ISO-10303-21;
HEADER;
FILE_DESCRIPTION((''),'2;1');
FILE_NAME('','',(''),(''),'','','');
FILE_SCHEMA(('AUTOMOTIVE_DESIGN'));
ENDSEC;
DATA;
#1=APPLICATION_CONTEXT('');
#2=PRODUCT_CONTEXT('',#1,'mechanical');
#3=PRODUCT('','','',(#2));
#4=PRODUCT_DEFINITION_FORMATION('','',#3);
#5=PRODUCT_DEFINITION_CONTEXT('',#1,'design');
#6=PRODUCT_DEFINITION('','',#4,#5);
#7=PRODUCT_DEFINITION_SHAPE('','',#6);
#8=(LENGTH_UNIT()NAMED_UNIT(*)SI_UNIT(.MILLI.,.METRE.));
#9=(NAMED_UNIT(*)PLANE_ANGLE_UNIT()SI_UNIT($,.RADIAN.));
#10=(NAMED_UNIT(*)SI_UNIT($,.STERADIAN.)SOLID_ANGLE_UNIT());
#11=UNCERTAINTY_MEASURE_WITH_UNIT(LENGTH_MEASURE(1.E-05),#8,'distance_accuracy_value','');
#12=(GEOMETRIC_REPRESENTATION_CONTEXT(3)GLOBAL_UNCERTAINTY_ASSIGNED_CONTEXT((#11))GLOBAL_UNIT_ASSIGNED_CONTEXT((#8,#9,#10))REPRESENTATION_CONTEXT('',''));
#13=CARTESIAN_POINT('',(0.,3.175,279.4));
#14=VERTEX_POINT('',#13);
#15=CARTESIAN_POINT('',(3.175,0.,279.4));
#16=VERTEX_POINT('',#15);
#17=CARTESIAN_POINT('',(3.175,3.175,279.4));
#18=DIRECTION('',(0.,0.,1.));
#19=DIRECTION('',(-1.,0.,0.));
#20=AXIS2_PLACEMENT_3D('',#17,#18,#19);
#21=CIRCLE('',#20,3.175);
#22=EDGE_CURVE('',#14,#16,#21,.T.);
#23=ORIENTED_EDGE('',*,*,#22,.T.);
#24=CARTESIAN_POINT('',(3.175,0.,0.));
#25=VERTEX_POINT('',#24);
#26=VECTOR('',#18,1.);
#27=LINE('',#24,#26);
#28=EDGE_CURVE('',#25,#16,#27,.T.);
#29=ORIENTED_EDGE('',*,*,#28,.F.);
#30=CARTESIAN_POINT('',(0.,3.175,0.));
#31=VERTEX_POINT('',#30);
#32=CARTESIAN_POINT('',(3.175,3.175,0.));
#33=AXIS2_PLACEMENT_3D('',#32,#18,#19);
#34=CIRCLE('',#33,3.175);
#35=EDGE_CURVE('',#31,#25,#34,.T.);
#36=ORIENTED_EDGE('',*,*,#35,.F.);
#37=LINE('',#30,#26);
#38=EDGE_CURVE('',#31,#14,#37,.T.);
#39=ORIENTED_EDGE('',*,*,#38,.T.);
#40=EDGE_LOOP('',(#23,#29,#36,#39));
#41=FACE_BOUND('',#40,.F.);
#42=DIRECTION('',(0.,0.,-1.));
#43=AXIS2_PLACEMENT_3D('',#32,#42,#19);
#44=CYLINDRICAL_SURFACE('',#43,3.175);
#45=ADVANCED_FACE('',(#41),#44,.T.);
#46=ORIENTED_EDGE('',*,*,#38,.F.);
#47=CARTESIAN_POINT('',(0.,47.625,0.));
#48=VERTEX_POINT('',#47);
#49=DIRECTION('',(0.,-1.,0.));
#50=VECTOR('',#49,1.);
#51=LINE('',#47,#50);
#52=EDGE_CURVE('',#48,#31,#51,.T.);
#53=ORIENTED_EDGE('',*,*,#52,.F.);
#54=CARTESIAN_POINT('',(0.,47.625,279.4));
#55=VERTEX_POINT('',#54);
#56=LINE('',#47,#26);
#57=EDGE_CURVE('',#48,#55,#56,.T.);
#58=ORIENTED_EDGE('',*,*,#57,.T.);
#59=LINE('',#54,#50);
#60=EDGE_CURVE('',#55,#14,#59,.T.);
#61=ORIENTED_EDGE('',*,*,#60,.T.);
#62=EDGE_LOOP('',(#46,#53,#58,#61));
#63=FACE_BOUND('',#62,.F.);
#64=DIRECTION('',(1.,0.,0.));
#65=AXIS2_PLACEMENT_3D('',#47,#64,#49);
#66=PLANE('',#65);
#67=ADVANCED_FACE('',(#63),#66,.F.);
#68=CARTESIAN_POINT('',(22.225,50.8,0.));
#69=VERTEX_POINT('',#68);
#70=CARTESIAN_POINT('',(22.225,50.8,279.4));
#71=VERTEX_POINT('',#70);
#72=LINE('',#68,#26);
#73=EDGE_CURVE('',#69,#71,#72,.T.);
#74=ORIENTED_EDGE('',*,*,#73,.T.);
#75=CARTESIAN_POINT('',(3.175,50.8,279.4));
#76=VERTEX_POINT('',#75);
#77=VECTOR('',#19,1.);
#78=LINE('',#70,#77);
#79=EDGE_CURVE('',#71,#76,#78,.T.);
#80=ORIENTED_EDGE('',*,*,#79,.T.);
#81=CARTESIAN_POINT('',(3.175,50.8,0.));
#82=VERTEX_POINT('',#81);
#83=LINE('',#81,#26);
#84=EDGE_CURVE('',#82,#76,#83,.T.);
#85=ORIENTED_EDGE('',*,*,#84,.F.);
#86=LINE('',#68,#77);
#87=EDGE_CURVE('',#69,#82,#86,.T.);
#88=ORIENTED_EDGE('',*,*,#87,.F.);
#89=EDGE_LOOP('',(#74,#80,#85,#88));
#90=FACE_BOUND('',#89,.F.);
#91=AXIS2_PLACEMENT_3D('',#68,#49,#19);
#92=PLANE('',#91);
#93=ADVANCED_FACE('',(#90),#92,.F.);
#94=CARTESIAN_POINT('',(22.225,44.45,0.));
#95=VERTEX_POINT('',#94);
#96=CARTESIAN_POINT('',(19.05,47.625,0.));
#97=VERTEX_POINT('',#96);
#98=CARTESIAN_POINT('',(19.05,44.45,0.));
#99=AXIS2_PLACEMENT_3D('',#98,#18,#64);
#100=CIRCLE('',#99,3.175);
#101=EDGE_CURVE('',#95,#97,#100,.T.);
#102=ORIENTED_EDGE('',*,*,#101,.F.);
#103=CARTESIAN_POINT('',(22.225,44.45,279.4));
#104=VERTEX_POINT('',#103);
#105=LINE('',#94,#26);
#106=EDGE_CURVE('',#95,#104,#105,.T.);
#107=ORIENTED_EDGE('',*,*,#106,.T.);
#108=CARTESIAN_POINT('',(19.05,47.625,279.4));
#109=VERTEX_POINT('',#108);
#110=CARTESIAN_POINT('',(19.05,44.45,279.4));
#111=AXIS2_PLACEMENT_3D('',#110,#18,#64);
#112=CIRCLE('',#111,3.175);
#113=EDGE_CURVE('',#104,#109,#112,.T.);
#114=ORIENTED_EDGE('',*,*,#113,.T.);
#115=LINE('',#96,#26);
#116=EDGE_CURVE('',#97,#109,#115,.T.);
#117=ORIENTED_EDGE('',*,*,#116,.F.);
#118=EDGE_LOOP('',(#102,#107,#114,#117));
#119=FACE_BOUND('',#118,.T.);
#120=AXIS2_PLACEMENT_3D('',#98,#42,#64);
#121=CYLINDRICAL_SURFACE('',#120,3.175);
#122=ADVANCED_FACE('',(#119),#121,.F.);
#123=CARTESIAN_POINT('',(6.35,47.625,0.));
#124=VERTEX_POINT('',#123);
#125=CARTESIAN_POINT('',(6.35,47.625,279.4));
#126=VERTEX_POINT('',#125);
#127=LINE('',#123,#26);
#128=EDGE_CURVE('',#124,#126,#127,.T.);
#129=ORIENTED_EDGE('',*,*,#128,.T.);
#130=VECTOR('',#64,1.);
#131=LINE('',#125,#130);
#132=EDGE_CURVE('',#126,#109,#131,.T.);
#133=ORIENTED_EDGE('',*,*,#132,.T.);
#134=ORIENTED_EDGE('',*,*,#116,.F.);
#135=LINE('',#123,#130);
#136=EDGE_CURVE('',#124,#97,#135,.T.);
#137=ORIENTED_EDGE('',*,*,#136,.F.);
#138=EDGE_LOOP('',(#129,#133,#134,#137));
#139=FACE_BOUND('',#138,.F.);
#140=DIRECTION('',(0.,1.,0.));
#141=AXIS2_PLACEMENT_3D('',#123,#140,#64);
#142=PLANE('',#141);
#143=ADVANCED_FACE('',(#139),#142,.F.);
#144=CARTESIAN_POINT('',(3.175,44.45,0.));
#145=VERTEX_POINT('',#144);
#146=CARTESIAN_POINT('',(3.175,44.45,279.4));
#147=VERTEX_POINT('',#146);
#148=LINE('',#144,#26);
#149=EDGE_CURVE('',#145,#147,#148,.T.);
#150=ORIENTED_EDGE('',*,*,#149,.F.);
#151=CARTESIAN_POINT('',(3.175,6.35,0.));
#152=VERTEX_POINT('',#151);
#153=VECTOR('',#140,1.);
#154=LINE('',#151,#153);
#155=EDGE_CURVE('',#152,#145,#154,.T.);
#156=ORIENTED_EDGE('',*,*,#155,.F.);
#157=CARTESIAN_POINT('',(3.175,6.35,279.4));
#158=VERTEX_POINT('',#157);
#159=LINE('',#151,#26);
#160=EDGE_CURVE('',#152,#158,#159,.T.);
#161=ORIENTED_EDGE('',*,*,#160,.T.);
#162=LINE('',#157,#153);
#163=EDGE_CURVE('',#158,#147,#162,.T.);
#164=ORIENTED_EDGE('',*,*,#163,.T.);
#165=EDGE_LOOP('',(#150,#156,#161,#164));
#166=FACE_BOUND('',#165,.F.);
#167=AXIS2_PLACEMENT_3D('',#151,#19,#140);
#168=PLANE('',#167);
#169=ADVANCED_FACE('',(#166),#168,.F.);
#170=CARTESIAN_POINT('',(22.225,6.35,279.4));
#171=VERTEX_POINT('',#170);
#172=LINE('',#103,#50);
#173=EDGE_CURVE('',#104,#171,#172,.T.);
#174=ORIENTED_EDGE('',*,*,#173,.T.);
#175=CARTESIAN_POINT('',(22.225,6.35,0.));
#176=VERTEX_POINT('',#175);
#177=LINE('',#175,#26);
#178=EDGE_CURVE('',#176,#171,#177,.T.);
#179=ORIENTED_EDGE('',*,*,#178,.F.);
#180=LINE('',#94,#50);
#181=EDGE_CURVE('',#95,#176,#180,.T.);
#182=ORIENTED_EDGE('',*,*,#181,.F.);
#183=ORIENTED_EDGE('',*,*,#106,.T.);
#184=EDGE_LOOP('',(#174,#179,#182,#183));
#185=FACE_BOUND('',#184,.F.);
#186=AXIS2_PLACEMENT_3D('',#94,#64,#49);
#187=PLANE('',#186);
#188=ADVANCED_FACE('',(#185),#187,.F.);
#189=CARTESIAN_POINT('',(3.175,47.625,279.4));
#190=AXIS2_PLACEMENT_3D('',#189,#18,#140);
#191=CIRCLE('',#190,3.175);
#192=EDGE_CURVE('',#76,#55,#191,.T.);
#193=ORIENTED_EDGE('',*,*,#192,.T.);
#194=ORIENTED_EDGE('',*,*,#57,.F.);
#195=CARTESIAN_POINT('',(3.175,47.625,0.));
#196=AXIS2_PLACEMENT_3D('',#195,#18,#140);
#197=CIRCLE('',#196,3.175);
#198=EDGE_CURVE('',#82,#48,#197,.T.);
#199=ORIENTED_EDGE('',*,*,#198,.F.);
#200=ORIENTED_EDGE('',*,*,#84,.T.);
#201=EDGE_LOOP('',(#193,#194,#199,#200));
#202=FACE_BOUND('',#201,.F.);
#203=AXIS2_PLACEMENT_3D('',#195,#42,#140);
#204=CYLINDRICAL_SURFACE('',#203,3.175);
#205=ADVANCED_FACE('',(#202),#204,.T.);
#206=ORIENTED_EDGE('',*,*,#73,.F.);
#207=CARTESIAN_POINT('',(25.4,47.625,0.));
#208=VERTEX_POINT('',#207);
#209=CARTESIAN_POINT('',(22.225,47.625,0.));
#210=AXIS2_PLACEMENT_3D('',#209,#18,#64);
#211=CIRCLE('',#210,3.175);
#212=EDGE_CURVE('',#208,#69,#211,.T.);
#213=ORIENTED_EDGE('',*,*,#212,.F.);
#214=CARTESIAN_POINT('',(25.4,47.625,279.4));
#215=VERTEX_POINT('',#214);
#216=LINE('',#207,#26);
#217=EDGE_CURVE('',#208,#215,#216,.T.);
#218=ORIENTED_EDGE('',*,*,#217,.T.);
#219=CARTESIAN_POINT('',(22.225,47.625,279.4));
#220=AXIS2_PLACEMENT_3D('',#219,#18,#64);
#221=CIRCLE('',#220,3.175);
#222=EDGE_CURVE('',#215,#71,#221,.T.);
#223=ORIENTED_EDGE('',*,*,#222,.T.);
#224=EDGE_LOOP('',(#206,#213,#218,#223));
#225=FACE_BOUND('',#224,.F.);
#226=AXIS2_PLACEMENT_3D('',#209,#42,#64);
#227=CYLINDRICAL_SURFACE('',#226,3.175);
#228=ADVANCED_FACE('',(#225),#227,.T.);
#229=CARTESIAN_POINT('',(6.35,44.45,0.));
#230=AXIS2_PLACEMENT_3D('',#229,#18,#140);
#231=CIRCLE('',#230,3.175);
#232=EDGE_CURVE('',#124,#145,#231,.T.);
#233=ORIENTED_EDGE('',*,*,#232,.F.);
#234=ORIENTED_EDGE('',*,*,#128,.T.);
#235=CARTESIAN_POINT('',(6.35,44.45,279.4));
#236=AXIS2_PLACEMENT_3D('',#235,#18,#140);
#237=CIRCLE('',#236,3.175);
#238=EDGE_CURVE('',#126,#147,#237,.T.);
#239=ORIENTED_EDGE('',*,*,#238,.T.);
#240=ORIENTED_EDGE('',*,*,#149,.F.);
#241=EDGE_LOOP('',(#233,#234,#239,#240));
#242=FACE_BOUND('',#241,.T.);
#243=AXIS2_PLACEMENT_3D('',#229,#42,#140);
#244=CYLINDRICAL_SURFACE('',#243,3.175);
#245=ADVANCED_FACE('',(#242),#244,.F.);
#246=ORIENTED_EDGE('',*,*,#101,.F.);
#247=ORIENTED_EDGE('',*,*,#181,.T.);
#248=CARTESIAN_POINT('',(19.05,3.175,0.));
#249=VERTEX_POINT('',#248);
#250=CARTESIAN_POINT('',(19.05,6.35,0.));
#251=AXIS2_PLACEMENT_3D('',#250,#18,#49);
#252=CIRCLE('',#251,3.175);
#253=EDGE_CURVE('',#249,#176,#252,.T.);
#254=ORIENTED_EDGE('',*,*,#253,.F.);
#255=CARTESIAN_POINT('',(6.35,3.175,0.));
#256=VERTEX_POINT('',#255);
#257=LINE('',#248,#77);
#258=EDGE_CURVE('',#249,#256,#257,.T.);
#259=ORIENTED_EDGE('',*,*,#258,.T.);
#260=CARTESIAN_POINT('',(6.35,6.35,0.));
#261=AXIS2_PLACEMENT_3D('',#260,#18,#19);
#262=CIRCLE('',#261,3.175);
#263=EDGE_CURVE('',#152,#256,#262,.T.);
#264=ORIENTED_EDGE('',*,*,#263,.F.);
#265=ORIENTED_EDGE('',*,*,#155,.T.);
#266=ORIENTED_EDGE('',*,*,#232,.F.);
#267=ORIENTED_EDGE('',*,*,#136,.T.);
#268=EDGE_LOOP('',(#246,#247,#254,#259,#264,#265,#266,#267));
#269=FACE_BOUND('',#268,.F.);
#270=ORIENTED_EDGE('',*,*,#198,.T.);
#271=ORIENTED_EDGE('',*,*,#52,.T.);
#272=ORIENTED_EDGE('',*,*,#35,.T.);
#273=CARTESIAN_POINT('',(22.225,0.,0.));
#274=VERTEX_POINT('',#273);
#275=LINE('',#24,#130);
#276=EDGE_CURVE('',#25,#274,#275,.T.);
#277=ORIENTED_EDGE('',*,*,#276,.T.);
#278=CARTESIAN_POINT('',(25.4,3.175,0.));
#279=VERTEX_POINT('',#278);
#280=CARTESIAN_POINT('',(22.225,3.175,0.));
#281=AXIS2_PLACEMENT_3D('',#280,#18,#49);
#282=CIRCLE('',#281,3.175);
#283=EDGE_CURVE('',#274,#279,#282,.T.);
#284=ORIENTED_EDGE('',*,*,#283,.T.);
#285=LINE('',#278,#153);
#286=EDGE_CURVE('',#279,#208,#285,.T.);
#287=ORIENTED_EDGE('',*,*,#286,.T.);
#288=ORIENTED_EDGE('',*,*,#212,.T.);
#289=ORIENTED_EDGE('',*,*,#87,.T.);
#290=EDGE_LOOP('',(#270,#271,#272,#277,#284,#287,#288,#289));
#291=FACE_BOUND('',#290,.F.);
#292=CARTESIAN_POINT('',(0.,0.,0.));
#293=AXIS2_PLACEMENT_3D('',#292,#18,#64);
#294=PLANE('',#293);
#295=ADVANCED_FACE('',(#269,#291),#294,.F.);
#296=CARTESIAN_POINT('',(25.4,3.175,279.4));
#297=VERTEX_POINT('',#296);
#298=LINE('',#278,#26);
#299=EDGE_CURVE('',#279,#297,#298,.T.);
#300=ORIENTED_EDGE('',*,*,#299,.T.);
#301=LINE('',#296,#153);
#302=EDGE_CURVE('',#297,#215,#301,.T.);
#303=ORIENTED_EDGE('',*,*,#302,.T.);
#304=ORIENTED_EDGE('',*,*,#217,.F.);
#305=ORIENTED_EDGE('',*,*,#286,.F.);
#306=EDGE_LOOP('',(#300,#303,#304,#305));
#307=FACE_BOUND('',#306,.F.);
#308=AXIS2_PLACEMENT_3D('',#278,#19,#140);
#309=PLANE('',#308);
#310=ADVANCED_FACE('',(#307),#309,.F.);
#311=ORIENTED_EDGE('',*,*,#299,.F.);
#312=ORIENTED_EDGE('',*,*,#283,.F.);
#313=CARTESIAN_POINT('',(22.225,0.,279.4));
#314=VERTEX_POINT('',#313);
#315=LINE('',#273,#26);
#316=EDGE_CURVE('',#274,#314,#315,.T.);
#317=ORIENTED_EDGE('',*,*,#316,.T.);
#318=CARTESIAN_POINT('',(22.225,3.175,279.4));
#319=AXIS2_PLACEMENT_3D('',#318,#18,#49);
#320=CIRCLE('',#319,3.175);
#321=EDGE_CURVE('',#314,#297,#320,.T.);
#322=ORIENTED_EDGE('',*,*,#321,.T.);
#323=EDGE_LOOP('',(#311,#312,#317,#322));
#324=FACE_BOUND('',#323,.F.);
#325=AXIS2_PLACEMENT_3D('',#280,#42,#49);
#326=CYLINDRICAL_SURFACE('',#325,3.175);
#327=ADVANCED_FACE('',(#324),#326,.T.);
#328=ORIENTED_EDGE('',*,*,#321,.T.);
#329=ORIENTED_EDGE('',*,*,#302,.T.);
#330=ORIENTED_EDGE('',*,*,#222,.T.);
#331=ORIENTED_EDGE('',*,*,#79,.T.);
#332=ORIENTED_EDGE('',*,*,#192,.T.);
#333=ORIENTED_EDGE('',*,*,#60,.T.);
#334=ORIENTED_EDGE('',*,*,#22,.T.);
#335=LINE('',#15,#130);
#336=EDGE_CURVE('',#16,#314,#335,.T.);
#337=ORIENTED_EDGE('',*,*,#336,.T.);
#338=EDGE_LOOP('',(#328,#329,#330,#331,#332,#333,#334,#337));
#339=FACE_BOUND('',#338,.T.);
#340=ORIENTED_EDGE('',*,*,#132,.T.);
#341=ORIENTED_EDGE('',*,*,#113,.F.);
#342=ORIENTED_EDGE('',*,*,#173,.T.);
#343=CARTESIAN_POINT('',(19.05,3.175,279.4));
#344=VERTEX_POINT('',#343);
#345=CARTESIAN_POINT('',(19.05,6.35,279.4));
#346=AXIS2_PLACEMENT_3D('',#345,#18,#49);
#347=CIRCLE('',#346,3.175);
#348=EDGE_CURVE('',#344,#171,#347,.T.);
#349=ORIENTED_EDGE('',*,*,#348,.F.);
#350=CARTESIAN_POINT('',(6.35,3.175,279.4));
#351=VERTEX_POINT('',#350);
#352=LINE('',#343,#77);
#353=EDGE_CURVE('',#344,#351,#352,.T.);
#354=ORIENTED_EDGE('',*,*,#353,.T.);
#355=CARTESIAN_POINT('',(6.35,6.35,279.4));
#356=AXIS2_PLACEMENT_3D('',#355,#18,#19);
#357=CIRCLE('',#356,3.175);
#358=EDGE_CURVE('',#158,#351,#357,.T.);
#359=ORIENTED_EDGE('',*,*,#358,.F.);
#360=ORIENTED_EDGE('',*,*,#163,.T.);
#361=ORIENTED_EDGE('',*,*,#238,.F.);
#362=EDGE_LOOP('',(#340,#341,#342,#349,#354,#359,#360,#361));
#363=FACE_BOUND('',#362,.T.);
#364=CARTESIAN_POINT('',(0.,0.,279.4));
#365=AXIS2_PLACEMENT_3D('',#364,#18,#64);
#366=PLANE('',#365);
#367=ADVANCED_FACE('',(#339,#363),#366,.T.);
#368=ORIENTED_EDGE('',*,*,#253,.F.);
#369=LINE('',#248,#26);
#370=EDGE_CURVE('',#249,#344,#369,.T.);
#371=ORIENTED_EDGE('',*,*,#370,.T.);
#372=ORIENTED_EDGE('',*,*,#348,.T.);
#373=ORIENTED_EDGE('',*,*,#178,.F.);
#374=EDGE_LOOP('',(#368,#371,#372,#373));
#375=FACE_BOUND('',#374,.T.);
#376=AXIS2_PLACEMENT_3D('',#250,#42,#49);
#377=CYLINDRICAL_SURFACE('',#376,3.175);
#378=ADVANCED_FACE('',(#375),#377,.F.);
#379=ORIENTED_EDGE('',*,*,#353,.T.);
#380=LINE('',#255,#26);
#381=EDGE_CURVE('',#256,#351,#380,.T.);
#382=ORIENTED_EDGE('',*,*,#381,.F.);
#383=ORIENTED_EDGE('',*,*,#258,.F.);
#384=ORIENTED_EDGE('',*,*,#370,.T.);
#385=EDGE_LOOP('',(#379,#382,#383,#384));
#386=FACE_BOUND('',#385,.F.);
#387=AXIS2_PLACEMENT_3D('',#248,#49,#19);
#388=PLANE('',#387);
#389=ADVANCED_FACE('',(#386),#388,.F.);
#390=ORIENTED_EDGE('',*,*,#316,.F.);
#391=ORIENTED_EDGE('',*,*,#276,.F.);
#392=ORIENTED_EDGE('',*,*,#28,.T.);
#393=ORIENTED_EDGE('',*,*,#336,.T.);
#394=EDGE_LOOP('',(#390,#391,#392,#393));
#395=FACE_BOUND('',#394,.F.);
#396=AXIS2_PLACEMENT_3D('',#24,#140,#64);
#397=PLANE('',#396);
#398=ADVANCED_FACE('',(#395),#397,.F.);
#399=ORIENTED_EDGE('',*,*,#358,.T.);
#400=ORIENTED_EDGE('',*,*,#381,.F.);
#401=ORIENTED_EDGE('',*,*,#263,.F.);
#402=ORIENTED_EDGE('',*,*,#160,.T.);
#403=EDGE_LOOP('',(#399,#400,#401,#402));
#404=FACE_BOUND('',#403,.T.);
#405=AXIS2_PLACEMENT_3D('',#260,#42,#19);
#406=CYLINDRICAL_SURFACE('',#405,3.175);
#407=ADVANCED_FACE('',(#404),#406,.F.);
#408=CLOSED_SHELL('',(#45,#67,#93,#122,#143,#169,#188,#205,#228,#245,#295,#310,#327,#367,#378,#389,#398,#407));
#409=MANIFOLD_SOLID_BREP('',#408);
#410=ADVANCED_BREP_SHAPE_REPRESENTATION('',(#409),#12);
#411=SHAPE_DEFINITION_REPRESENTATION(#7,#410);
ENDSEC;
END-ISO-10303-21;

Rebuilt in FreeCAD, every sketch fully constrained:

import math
import FreeCAD as App
import Part
import Sketcher

V = App.Vector
Q = App.Units.Quantity

doc = App.newDocument("Part")
body = doc.addObject("PartDesign::Body", "Body")

sketch1 = doc.addObject("Sketcher::SketchObject", "Sketch")
body.addObject(sketch1)
sketch1.AttachmentSupport = (doc.XY_Plane, [""])
sketch1.MapMode = "FlatFace"
sketch1.addGeometry([
    Part.ArcOfCircle(Part.Circle(V(3.2, 3.2, 0), V(0, 0, 1), 3.2), math.radians(180), math.radians(270)),
    Part.LineSegment(V(3.2, 0, 0), V(22.2, 0, 0)),
    Part.ArcOfCircle(Part.Circle(V(22.2, 3.2, 0), V(0, 0, 1), 3.2), math.radians(-90), math.radians(0)),
    Part.LineSegment(V(25.4, 3.2, 0), V(25.4, 47.6, 0)),
    Part.ArcOfCircle(Part.Circle(V(22.2, 47.6, 0), V(0, 0, 1), 3.2), math.radians(0), math.radians(90)),
    Part.LineSegment(V(22.2, 50.8, 0), V(3.2, 50.8, 0)),
    Part.ArcOfCircle(Part.Circle(V(3.2, 47.6, 0), V(0, 0, 1), 3.2), math.radians(90), math.radians(180)),
    Part.LineSegment(V(0, 47.6, 0), V(0, 3.2, 0)),
    Part.ArcOfCircle(Part.Circle(V(6.3, 44.5, 0), V(0, 0, 1), 3.2), math.radians(90), math.radians(180)),
    Part.LineSegment(V(6.3, 47.6, 0), V(19.1, 47.6, 0)),
    Part.ArcOfCircle(Part.Circle(V(19.1, 44.5, 0), V(0, 0, 1), 3.2), math.radians(0), math.radians(90)),
    Part.LineSegment(V(22.2, 44.5, 0), V(22.2, 6.3, 0)),
    Part.ArcOfCircle(Part.Circle(V(19.1, 6.3, 0), V(0, 0, 1), 3.2), math.radians(-90), math.radians(0)),
    Part.LineSegment(V(19.1, 3.2, 0), V(6.3, 3.2, 0)),
    Part.ArcOfCircle(Part.Circle(V(6.3, 6.3, 0), V(0, 0, 1), 3.2), math.radians(180), math.radians(270)),
    Part.LineSegment(V(3.2, 6.3, 0), V(3.2, 44.5, 0)),
], False)
sketch1.addConstraint([
    Sketcher.Constraint("Tangent", 0, 2, 1, 1),
    Sketcher.Constraint("Tangent", 1, 2, 2, 1),
    Sketcher.Constraint("Tangent", 2, 2, 3, 1),
    Sketcher.Constraint("Tangent", 3, 2, 4, 1),
    Sketcher.Constraint("Tangent", 4, 2, 5, 1),
    Sketcher.Constraint("Tangent", 5, 2, 6, 1),
    Sketcher.Constraint("Tangent", 6, 2, 7, 1),
    Sketcher.Constraint("Tangent", 7, 2, 0, 1),
    Sketcher.Constraint("Tangent", 8, 1, 9, 1),
    Sketcher.Constraint("Tangent", 9, 2, 10, 2),
    Sketcher.Constraint("Tangent", 10, 1, 11, 1),
    Sketcher.Constraint("Tangent", 11, 2, 12, 2),
    Sketcher.Constraint("Tangent", 12, 1, 13, 1),
    Sketcher.Constraint("Tangent", 13, 2, 14, 2),
    Sketcher.Constraint("Tangent", 14, 1, 15, 1),
    Sketcher.Constraint("Tangent", 15, 2, 8, 2),
    Sketcher.Constraint("Horizontal", 1),
    Sketcher.Constraint("Vertical", 3),
    Sketcher.Constraint("Horizontal", 5),
    Sketcher.Constraint("Vertical", 7),
    Sketcher.Constraint("Horizontal", 9),
    Sketcher.Constraint("Vertical", 11),
    Sketcher.Constraint("Horizontal", 13),
    Sketcher.Constraint("Vertical", 15),
    Sketcher.Constraint("Equal", 0, 2),
    Sketcher.Constraint("Equal", 2, 4),
    Sketcher.Constraint("Equal", 4, 6),
    Sketcher.Constraint("Equal", 6, 8),
    Sketcher.Constraint("Equal", 8, 10),
    Sketcher.Constraint("Equal", 10, 12),
    Sketcher.Constraint("Equal", 12, 14),
    Sketcher.Constraint("PointOnObject", 0, 2, -1),
    Sketcher.Constraint("PointOnObject", 6, 2, -2),
    Sketcher.Constraint("Horizontal", 6, 2, 8, 1),
    Sketcher.Constraint("Horizontal", 7, 2, 12, 1),
    Sketcher.Constraint("Vertical", 4, 2, 10, 1),
    Sketcher.Constraint("Vertical", 5, 2, 14, 1),
    Sketcher.Constraint("DistanceX", -1, 1, 2, 2, Q("1 in")),
    Sketcher.Constraint("DistanceY", -1, 1, 4, 2, Q("2 in")),
    Sketcher.Constraint("Radius", 0, Q("0.125 in")),
])
pad1 = doc.addObject("PartDesign::Pad", "Pad")
body.addObject(pad1)
pad1.Profile = sketch1
pad1.Length = Q("11 in")

doc.recompute()
